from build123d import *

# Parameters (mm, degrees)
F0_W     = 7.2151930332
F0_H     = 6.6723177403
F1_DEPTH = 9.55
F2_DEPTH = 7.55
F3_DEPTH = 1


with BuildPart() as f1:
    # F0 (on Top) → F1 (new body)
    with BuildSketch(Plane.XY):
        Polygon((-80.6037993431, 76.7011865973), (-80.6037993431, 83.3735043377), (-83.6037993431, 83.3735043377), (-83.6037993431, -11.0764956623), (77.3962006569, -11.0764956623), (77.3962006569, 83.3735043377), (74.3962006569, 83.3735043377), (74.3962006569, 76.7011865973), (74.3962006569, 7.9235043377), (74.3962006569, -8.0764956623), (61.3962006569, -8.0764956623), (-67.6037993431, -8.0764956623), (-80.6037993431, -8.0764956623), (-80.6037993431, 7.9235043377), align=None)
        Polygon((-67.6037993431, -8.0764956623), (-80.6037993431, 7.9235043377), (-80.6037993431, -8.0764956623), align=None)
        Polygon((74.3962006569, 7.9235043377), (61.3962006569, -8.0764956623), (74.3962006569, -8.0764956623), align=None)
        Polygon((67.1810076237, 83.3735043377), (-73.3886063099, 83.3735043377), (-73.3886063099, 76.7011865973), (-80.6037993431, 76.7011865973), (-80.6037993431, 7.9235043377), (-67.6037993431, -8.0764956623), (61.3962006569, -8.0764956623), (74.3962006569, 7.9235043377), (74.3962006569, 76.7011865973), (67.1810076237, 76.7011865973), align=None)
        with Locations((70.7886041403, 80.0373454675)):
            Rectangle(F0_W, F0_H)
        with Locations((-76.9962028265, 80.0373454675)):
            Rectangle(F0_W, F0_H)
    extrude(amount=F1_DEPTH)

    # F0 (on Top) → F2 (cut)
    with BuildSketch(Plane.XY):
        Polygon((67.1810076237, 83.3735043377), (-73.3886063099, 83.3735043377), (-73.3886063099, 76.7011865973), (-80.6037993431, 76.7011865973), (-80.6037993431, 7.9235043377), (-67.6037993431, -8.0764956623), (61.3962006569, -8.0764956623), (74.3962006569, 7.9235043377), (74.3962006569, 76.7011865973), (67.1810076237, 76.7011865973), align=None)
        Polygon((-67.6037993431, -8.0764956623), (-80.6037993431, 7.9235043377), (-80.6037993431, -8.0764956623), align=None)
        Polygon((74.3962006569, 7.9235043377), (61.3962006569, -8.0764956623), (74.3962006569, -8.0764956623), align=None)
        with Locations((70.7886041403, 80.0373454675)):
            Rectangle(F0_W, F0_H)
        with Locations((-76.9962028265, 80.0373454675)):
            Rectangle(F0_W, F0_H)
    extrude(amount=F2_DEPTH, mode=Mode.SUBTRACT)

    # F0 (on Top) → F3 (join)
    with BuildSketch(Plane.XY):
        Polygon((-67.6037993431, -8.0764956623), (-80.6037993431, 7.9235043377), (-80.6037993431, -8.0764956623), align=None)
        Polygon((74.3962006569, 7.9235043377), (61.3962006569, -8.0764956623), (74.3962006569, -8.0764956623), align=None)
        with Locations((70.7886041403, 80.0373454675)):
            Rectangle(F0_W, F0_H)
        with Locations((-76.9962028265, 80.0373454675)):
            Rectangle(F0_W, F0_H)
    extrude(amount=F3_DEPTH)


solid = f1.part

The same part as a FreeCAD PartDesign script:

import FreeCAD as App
import Part
import Sketcher

doc = App.newDocument("Part")
body = doc.addObject("PartDesign::Body", "Body")

# Sketch on XY plane
sketch1 = doc.addObject("Sketcher::SketchObject", "Sketch")
body.addObject(sketch1)
sketch1.AttachmentSupport = (doc.XY_Plane, [""])
sketch1.MapMode = "FlatFace"
sketch1.addGeometry([
    Part.LineSegment(App.Vector(-84, 83, 0), App.Vector(-84, -11, 0)),
    Part.LineSegment(App.Vector(-84, -11, 0), App.Vector(77, -11, 0)),
    Part.LineSegment(App.Vector(77, -11, 0), App.Vector(77, 83, 0)),
    Part.LineSegment(App.Vector(77, 83, 0), App.Vector(-84, 83, 0)),
], False)
sketch1.addConstraint([
    Sketcher.Constraint("Coincident", 0, 2, 1, 1),
    Sketcher.Constraint("Coincident", 1, 2, 2, 1),
    Sketcher.Constraint("Coincident", 2, 2, 3, 1),
    Sketcher.Constraint("Coincident", 3, 2, 0, 1),
    Sketcher.Constraint("Vertical", 0),
    Sketcher.Constraint("Horizontal", 1),
    Sketcher.Constraint("Vertical", 2),
    Sketcher.Constraint("Horizontal", 3),
    Sketcher.Constraint("DistanceX", 1, 1, 1, 2, 161.0),
    Sketcher.Constraint("DistanceY", 0, 2, 0, 1, 94.45),
    Sketcher.Constraint("DistanceX", 0, 2, -1, 1, 83.603799),
    Sketcher.Constraint("DistanceY", 0, 2, -1, 1, 11.076496),
])
pad1 = doc.addObject("PartDesign::Pad", "Pad")
body.addObject(pad1)
pad1.Profile = sketch1
pad1.Length = 9.55

# Sketch on XY plane
sketch2 = doc.addObject("Sketcher::SketchObject", "Sketch001")
body.addObject(sketch2)
sketch2.AttachmentSupport = (doc.XY_Plane, [""])
sketch2.MapMode = "FlatFace"
sketch2.addGeometry([
    Part.LineSegment(App.Vector(-81, -8, 0), App.Vector(74, -8, 0)),
    Part.LineSegment(App.Vector(74, -8, 0), App.Vector(74, 83, 0)),
    Part.LineSegment(App.Vector(74, 83, 0), App.Vector(-81, 83, 0)),
    Part.LineSegment(App.Vector(-81, 83, 0), App.Vector(-81, -8, 0)),
], False)
sketch2.addConstraint([
    Sketcher.Constraint("Coincident", 0, 2, 1, 1),
    Sketcher.Constraint("Coincident", 1, 2, 2, 1),
    Sketcher.Constraint("Coincident", 2, 2, 3, 1),
    Sketcher.Constraint("Coincident", 3, 2, 0, 1),
    Sketcher.Constraint("Horizontal", 0),
    Sketcher.Constraint("Vertical", 1),
    Sketcher.Constraint("Horizontal", 2),
    Sketcher.Constraint("Vertical", 3),
    Sketcher.Constraint("DistanceX", 0, 1, 0, 2, 155.0),
    Sketcher.Constraint("DistanceY", 1, 1, 1, 2, 91.45),
    Sketcher.Constraint("DistanceX", -1, 1, 0, 2, 74.396201),
    Sketcher.Constraint("DistanceY", 0, 2, -1, 1, 8.076496),
])
pocket1 = doc.addObject("PartDesign::Pocket", "Pocket")
body.addObject(pocket1)
pocket1.Profile = sketch2
pocket1.Length = 7.55
pocket1.Reversed = True

# Sketch on XY plane
sketch3 = doc.addObject("Sketcher::SketchObject", "Sketch002")
body.addObject(sketch3)
sketch3.AttachmentSupport = (doc.XY_Plane, [""])
sketch3.MapMode = "FlatFace"
sketch3.addGeometry([
    Part.LineSegment(App.Vector(-68, -8, 0), App.Vector(-81, 8, 0)),  # 0
    Part.LineSegment(App.Vector(-81, 8, 0), App.Vector(-81, -8, 0)),  # 1
    Part.LineSegment(App.Vector(-81, -8, 0), App.Vector(-68, -8, 0)),  # 2
    Part.LineSegment(App.Vector(74, 8, 0), App.Vector(61, -8, 0)),  # 3
    Part.LineSegment(App.Vector(61, -8, 0), App.Vector(74, -8, 0)),  # 4
    Part.LineSegment(App.Vector(74, -8, 0), App.Vector(74, 8, 0)),  # 5
    Part.LineSegment(App.Vector(67, 83, 0), App.Vector(67, 77, 0)),  # 6
    Part.LineSegment(App.Vector(67, 77, 0), App.Vector(74, 77, 0)),  # 7
    Part.LineSegment(App.Vector(74, 77, 0), App.Vector(74, 83, 0)),  # 8
    Part.LineSegment(App.Vector(74, 83, 0), App.Vector(67, 83, 0)),  # 9
    Part.LineSegment(App.Vector(-81, 83, 0), App.Vector(-81, 77, 0)),  # 10
    Part.LineSegment(App.Vector(-81, 77, 0), App.Vector(-73, 77, 0)),  # 11
    Part.LineSegment(App.Vector(-73, 77, 0), App.Vector(-73, 83, 0)),  # 12
    Part.LineSegment(App.Vector(-73, 83, 0), App.Vector(-81, 83, 0)),  # 13
], False)
sketch3.addConstraint([
    Sketcher.Constraint("Coincident", 0, 2, 1, 1),
    Sketcher.Constraint("Coincident", 1, 2, 2, 1),
    Sketcher.Constraint("Coincident", 2, 2, 0, 1),
    Sketcher.Constraint("Coincident", 3, 2, 4, 1),
    Sketcher.Constraint("Coincident", 4, 2, 5, 1),
    Sketcher.Constraint("Coincident", 5, 2, 3, 1),
    Sketcher.Constraint("Coincident", 6, 2, 7, 1),
    Sketcher.Constraint("Coincident", 7, 2, 8, 1),
    Sketcher.Constraint("Coincident", 8, 2, 9, 1),
    Sketcher.Constraint("Coincident", 9, 2, 6, 1),
    Sketcher.Constraint("Coincident", 10, 2, 11, 1),
    Sketcher.Constraint("Coincident", 11, 2, 12, 1),
    Sketcher.Constraint("Coincident", 12, 2, 13, 1),
    Sketcher.Constraint("Coincident", 13, 2, 10, 1),
    Sketcher.Constraint("Vertical", 1),
    Sketcher.Constraint("Horizontal", 2),
    Sketcher.Constraint("Horizontal", 4),
    Sketcher.Constraint("Vertical", 5),
    Sketcher.Constraint("Vertical", 6),
    Sketcher.Constraint("Horizontal", 7),
    Sketcher.Constraint("Vertical", 8),
    Sketcher.Constraint("Horizontal", 9),
    Sketcher.Constraint("Vertical", 10),
    Sketcher.Constraint("Horizontal", 11),
    Sketcher.Constraint("Vertical", 12),
    Sketcher.Constraint("Horizontal", 13),
    Sketcher.Constraint("Horizontal", 2, 2, 3, 2),
    Sketcher.Constraint("Horizontal", 0, 2, 5, 2),
    Sketcher.Constraint("Horizontal", 7, 2, 10, 2),
    Sketcher.Constraint("Horizontal", 9, 2, 12, 2),
    Sketcher.Constraint("Vertical", 5, 2, 7, 2),
    Sketcher.Constraint("Vertical", 1, 2, 10, 2),
    Sketcher.Constraint("Equal", 2, 4),
    Sketcher.Constraint("Equal", 9, 11),
    Sketcher.Constraint("DistanceX", 2, 1, 2, 2, 13.0),
    Sketcher.Constraint("DistanceY", 1, 2, 1, 1, 16.0),
    Sketcher.Constraint("DistanceX", 2, 2, 3, 2, 129.0),
    Sketcher.Constraint("DistanceY", 5, 2, 8, 2, 75.45),
    Sketcher.Constraint("DistanceX", 0, 2, -1, 1, 80.603799),
    Sketcher.Constraint("DistanceX", 7, 1, 7, 2, 7.215193),
    Sketcher.Constraint("DistanceY", 6, 2, 6, 1, 6.672318),
    Sketcher.Constraint("DistanceY", -1, 1, 0, 2, 7.923504),
])
pad2 = doc.addObject("PartDesign::Pad", "Pad001")
body.addObject(pad2)
pad2.Profile = sketch3
pad2.Length = 1

doc.recompute()
